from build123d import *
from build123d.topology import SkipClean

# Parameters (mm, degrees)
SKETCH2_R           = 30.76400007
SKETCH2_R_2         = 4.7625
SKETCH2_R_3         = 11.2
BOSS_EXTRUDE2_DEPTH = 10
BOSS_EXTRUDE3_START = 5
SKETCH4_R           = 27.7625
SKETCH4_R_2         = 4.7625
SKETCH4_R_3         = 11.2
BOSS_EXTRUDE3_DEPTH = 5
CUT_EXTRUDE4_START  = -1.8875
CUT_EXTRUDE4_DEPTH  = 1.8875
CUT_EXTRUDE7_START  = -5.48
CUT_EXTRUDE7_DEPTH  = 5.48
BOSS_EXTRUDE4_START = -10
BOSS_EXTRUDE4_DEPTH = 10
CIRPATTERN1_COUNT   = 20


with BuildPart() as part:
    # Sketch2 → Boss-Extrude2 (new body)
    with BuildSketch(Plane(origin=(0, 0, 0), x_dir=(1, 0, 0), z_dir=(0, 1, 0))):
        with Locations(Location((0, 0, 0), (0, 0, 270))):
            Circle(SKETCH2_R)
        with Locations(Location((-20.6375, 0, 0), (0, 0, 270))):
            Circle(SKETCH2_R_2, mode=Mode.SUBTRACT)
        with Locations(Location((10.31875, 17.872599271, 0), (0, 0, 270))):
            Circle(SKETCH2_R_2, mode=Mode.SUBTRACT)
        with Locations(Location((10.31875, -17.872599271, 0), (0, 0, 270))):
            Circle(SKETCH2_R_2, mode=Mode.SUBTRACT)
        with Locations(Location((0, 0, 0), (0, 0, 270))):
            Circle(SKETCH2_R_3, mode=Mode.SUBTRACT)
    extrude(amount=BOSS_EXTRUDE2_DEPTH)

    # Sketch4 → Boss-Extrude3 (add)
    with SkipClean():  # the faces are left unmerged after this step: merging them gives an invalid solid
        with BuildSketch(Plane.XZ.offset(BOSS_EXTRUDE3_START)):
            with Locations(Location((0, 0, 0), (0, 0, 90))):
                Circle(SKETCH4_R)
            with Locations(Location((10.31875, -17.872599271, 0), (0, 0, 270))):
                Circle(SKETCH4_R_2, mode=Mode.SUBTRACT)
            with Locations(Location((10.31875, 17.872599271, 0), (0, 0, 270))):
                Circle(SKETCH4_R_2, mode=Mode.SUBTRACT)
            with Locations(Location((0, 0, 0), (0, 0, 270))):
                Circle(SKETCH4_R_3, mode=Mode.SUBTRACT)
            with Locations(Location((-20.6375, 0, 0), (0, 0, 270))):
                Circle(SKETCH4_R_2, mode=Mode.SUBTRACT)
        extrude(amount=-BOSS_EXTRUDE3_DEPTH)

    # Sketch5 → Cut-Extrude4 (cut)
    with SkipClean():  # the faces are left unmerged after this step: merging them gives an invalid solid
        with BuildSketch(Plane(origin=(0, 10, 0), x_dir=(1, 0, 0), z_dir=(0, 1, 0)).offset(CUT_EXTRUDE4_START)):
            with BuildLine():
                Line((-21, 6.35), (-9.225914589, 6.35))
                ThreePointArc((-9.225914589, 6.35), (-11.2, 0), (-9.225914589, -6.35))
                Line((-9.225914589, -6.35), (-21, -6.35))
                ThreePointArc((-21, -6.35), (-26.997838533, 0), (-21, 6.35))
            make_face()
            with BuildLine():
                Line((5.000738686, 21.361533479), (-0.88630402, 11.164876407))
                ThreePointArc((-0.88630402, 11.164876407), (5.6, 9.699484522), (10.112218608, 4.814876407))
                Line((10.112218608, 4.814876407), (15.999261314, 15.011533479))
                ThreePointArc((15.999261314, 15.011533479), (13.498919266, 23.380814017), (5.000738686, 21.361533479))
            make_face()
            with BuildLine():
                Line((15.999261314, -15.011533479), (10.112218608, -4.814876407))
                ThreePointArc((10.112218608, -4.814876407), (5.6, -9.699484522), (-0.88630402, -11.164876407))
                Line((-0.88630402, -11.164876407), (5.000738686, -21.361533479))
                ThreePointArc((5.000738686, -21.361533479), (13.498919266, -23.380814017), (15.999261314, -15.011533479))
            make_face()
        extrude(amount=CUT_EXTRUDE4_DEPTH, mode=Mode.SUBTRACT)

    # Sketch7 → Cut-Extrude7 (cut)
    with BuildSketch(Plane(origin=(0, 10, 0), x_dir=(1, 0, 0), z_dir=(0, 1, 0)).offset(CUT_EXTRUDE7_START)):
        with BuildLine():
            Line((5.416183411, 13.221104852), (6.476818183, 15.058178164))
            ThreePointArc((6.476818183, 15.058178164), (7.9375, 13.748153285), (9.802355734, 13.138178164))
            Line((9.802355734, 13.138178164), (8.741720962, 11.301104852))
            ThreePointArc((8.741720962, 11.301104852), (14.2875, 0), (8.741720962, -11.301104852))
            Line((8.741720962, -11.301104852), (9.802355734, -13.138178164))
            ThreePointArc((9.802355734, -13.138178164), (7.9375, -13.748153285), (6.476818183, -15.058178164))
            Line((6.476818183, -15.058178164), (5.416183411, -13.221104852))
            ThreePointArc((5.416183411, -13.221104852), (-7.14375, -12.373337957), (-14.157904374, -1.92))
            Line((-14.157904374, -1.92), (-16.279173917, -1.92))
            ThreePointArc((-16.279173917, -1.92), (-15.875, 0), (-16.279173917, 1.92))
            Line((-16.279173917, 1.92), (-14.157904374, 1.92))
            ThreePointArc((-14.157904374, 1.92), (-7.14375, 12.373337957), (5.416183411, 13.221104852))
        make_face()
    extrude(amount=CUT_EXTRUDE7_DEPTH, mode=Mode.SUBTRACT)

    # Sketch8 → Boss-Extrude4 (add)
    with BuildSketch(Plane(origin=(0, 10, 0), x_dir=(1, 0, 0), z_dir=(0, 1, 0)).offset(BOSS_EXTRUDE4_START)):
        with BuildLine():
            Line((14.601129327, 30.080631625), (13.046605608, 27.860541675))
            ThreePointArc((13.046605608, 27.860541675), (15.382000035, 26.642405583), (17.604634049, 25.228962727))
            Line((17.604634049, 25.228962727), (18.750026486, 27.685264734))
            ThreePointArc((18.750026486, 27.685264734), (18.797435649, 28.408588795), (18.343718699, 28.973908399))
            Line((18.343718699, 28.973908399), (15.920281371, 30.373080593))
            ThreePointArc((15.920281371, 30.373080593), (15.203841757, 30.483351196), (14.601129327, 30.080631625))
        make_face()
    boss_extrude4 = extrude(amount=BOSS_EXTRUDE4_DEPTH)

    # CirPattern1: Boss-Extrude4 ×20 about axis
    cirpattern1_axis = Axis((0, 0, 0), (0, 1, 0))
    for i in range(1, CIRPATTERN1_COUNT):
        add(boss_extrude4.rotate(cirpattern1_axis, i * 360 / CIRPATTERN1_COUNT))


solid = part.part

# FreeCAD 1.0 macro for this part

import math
import FreeCAD as App
import Part
import Sketcher
from FreeCAD import Vector
Q = App.Units.Quantity

doc = App.newDocument("Part")
body = doc.addObject("PartDesign::Body", "Body")

# Sketch on XZ plane
sketch1 = body.newObject("Sketcher::SketchObject", "Sketch")
sketch1.AttachmentSupport = (doc.getObject("XZ_Plane"), [""])
sketch1.MapMode = "FlatFace"
sketch1.addGeometry([
    Part.Circle(Vector(0, 0, 0), Vector(0, 0, 1), 30.8),  # 0
    Part.Circle(Vector(-20.6, 0, 0), Vector(0, 0, 1), 4.8),  # 1
    Part.Circle(Vector(10.3, -17.9, 0), Vector(0, 0, 1), 4.8),  # 2
    Part.Circle(Vector(0, 0, 0), Vector(0, 0, 1), 11.2),  # 3
    Part.Circle(Vector(10.3, 17.9, 0), Vector(0, 0, 1), 4.8),  # 4
], False)
sketch1.addConstraint([
    Sketcher.Constraint("Coincident", 0, 3, -1, 1),
    Sketcher.Constraint("Coincident", 3, 3, -1, 1),
    Sketcher.Constraint("Equal", 1, 2),
    Sketcher.Constraint("Equal", 2, 4),
    Sketcher.Constraint("Symmetric", 2, 3, 4, 3, -1),
    Sketcher.Constraint("PointOnObject", 1, 3, -1),
    Sketcher.Constraint("Diameter", 3, 22.4),
    Sketcher.Constraint("Diameter", 0, 61.528),
    Sketcher.Constraint("Diameter", 1, 9.525),
    Sketcher.Constraint("DistanceX", 1, 3, -1, 1, 20.6375),
    Sketcher.Constraint("DistanceY", 2, 3, -1, 1, 17.872599),
    Sketcher.Constraint("DistanceX", -1, 1, 2, 3, 10.31875),
])
pad1 = body.newObject("PartDesign::Pad", "Pad")
pad1.Profile = sketch1
pad1.Length = 10
pad1.Reversed = True

# Sketch on XZ plane
sketch2 = body.newObject("Sketcher::SketchObject", "Sketch001")
sketch2.AttachmentSupport = (doc.getObject("XZ_Plane"), [""])
sketch2.MapMode = "FlatFace"
sketch2.AttachmentOffset = App.Placement(Vector(0, 0, 5), App.Rotation())
sketch2.addGeometry([
    Part.Circle(Vector(0, 0, 0), Vector(0, 0, 1), 27.8),  # 0
    Part.Circle(Vector(10.3, -17.9, 0), Vector(0, 0, 1), 4.8),  # 1
    Part.Circle(Vector(0, 0, 0), Vector(0, 0, 1), 11.2),  # 2
    Part.Circle(Vector(10.3, 17.9, 0), Vector(0, 0, 1), 4.8),  # 3
    Part.Circle(Vector(-20.6, 0, 0), Vector(0, 0, 1), 4.8),  # 4
], False)
sketch2.addConstraint([
    Sketcher.Constraint("Coincident", 0, 3, -1, 1),
    Sketcher.Constraint("Coincident", 2, 3, -1, 1),
    Sketcher.Constraint("Equal", 1, 3),
    Sketcher.Constraint("Equal", 3, 4),
    Sketcher.Constraint("Symmetric", 1, 3, 3, 3, -1),
    Sketcher.Constraint("PointOnObject", 4, 3, -1),
    Sketcher.Constraint("Diameter", 2, 22.4),
    Sketcher.Constraint("Diameter", 0, 55.525),
    Sketcher.Constraint("Diameter", 1, 9.525),
    Sketcher.Constraint("DistanceY", 1, 3, -1, 1, 17.872599),
    Sketcher.Constraint("DistanceX", 4, 3, -1, 1, 20.6375),
    Sketcher.Constraint("DistanceX", -1, 1, 1, 3, 10.31875),
])
pad2 = body.newObject("PartDesign::Pad", "Pad001")
pad2.Profile = sketch2
pad2.Length = 5
pad2.Reversed = True

# Sketch on XZ plane
sketch3 = body.newObject("Sketcher::SketchObject", "Sketch002")
sketch3.AttachmentSupport = (doc.getObject("XZ_Plane"), [""])
sketch3.MapMode = "FlatFace"
sketch3.AttachmentOffset = App.Placement(Vector(0, 0, -8.1125), App.Rotation())
sketch3.addGeometry([
    Part.LineSegment(Vector(-9, -6, 0), Vector(-21, -6, 0)),  # 0
    Part.ArcOfCircle(Part.Circle(Vector(-21, 0, 0), Vector(0, 0, 1), 6), math.radians(93), math.radians(267)),  # 1
    Part.LineSegment(Vector(-21, 6, 0), Vector(-9, 6, 0)),  # 2
    Part.ArcOfCircle(Part.Circle(Vector(0, 0, 0), Vector(0, 0, 1), 11), math.radians(145), math.radians(215)),  # 3
    Part.LineSegment(Vector(5, -21, 0), Vector(-1, -11, 0)),  # 4
    Part.ArcOfCircle(Part.Circle(Vector(0, 0, 0), Vector(0, 0, 1), 11), math.radians(-95), math.radians(-25)),  # 5
    Part.LineSegment(Vector(10, -5, 0), Vector(16, -15, 0)),  # 6
    Part.ArcOfCircle(Part.Circle(Vector(10, -18, 0), Vector(0, 0, 1), 6), math.radians(-147), math.radians(27)),  # 7
    Part.LineSegment(Vector(16, 15, 0), Vector(10, 5, 0)),  # 8
    Part.ArcOfCircle(Part.Circle(Vector(0, 0, 0), Vector(0, 0, 1), 11), math.radians(25), math.radians(95)),  # 9
    Part.LineSegment(Vector(-1, 11, 0), Vector(5, 21, 0)),  # 10
    Part.ArcOfCircle(Part.Circle(Vector(10, 18, 0), Vector(0, 0, 1), 6), math.radians(-27), math.radians(147)),  # 11
], False)
sketch3.addConstraint([
    Sketcher.Constraint("Coincident", 0, 2, 1, 2),
    Sketcher.Constraint("Coincident", 1, 1, 2, 1),
    Sketcher.Constraint("Coincident", 2, 2, 3, 1),
    Sketcher.Constraint("Coincident", 3, 2, 0, 1),
    Sketcher.Constraint("Coincident", 4, 2, 5, 1),
    Sketcher.Constraint("Coincident", 5, 2, 6, 1),
    Sketcher.Constraint("Coincident", 6, 2, 7, 2),
    Sketcher.Constraint("Coincident", 7, 1, 4, 1),
    Sketcher.Constraint("Coincident", 8, 2, 9, 1),
    Sketcher.Constraint("Coincident", 9, 2, 10, 1),
    Sketcher.Constraint("Coincident", 10, 2, 11, 2),
    Sketcher.Constraint("Coincident", 11, 1, 8, 1),
    Sketcher.Constraint("Horizontal", 0),
    Sketcher.Constraint("Horizontal", 2),
    Sketcher.Constraint("Coincident", 3, 3, -1, 1),
    Sketcher.Constraint("Coincident", 5, 3, -1, 1),
    Sketcher.Constraint("Coincident", 9, 3, -1, 1),
    Sketcher.Constraint("Equal", 3, 5),
    Sketcher.Constraint("Equal", 1, 7),
    Sketcher.Constraint("Equal", 5, 9),
    Sketcher.Constraint("Equal", 7, 11),
    Sketcher.Constraint("Symmetric", 7, 3, 11, 3, -1),
    Sketcher.Constraint("Symmetric", 0, 2, 1, 1, -1),
    Sketcher.Constraint("Parallel", 4, 6),
    Sketcher.Constraint("Parallel", 8, 10),
    Sketcher.Constraint("Vertical", 5, 2, 8, 2),
    Sketcher.Constraint("Vertical", 4, 2, 9, 2),
    Sketcher.Constraint("Vertical", 7, 1, 10, 2),
    Sketcher.Constraint("Equal", 4, 6),
    Sketcher.Constraint("Radius", 3, 11.2),
    Sketcher.Constraint("Angle", 4, Q("120 deg")),
    Sketcher.Constraint("DistanceX", 0, 2, -1, 1, 21.0),
    Sketcher.Constraint("DistanceY", 0, 2, 1, 1, 12.7),
    Sketcher.Constraint("Radius", 1, 6.360339),
    Sketcher.Constraint("DistanceY", 4, 2, 5, 2, 6.35),
    Sketcher.Constraint("DistanceY", 7, 3, -1, 1, 17.872599),
    Sketcher.Constraint("DistanceX", -1, 1, 7, 3, 10.31875),
])
pocket1 = body.newObject("PartDesign::Pocket", "Pocket")
pocket1.Profile = sketch3
pocket1.Length = 1.8875

# Sketch on XZ plane
sketch4 = body.newObject("Sketcher::SketchObject", "Sketch003")
sketch4.AttachmentSupport = (doc.getObject("XZ_Plane"), [""])
sketch4.MapMode = "FlatFace"
sketch4.AttachmentOffset = App.Placement(Vector(0, 0, -4.52), App.Rotation())
sketch4.addGeometry([
    Part.LineSegment(Vector(6.5, -15.1, 0), Vector(5.4, -13.2, 0)),  # 0
    Part.ArcOfCircle(Part.Circle(Vector(0, 0, 0), Vector(0, 0, 1), 14.3), math.radians(-172), math.radians(-68)),  # 1
    Part.LineSegment(Vector(-14.2, -1.9, 0), Vector(-16.3, -1.9, 0)),  # 2
    Part.ArcOfCircle(Part.Circle(Vector(-20.6, 0, 0), Vector(0, 0, 1), 4.8), math.radians(-24), math.radians(24)),  # 3
    Part.LineSegment(Vector(-16.3, 1.9, 0), Vector(-14.2, 1.9, 0)),  # 4
    Part.ArcOfCircle(Part.Circle(Vector(0, 0, 0), Vector(0, 0, 1), 14.3), math.radians(68), math.radians(172)),  # 5
    Part.LineSegment(Vector(5.4, 13.2, 0), Vector(6.5, 15.1, 0)),  # 6
    Part.ArcOfCircle(Part.Circle(Vector(10.3, 17.9, 0), Vector(0, 0, 1), 4.8), math.radians(-144), math.radians(-96)),  # 7
    Part.LineSegment(Vector(9.8, 13.1, 0), Vector(8.7, 11.3, 0)),  # 8
    Part.ArcOfCircle(Part.Circle(Vector(0, 0, 0), Vector(0, 0, 1), 14.3), math.radians(-52), math.radians(52)),  # 9
    Part.LineSegment(Vector(8.7, -11.3, 0), Vector(9.8, -13.1, 0)),  # 10
    Part.ArcOfCircle(Part.Circle(Vector(10.3, -17.9, 0), Vector(0, 0, 1), 4.8), math.radians(96), math.radians(144)),  # 11
], False)
sketch4.addConstraint([
    Sketcher.Constraint("Coincident", 0, 2, 1, 2),
    Sketcher.Constraint("Coincident", 1, 1, 2, 1),
    Sketcher.Constraint("Coincident", 2, 2, 3, 1),
    Sketcher.Constraint("Coincident", 3, 2, 4, 1),
    Sketcher.Constraint("Coincident", 4, 2, 5, 2),
    Sketcher.Constraint("Coincident", 5, 1, 6, 1),
    Sketcher.Constraint("Coincident", 6, 2, 7, 1),
    Sketcher.Constraint("Coincident", 7, 2, 8, 1),
    Sketcher.Constraint("Coincident", 8, 2, 9, 2),
    Sketcher.Constraint("Coincident", 9, 1, 10, 1),
    Sketcher.Constraint("Coincident", 10, 2, 11, 1),
    Sketcher.Constraint("Coincident", 11, 2, 0, 1),
    Sketcher.Constraint("Horizontal", 2),
    Sketcher.Constraint("Horizontal", 4),
    Sketcher.Constraint("Coincident", 1, 3, -1, 1),
    Sketcher.Constraint("Coincident", 5, 3, -1, 1),
    Sketcher.Constraint("Coincident", 9, 3, -1, 1),
    Sketcher.Constraint("Equal", 1, 5),
    Sketcher.Constraint("Equal", 3, 7),
    Sketcher.Constraint("Equal", 5, 9),
    Sketcher.Constraint("Equal", 7, 11),
    Sketcher.Constraint("Symmetric", 7, 3, 11, 3, -1),
    Sketcher.Constraint("Symmetric", 2, 2, 3, 2, -1),
    Sketcher.Constraint("Parallel", 6, 8),
    Sketcher.Constraint("Parallel", 0, 10),
    Sketcher.Constraint("Vertical", 0, 2, 5, 1),
    Sketcher.Constraint("Vertical", 8, 2, 9, 1),
    Sketcher.Constraint("Vertical", 7, 2, 10, 2),
    Sketcher.Constraint("Equal", 6, 8),
    Sketcher.Constraint("Angle", 0, Q("120 deg")),
    Sketcher.Constraint("Radius", 1, 14.2875),
    Sketcher.Constraint("Radius", 3, 4.7625),
    Sketcher.Constraint("DistanceY", 1, 1, -1, 1, 1.92),
    Sketcher.Constraint("DistanceY", 7, 2, 6, 2, 1.92),
    Sketcher.Constraint("DistanceX", 2, 2, 2, 1, 2.12127),
    Sketcher.Constraint("DistanceY", -1, 1, 7, 3, 17.872599),
    Sketcher.Constraint("Distance", 0, 2.12127),
])
pocket2 = body.newObject("PartDesign::Pocket", "Pocket001")
pocket2.Profile = sketch4
pocket2.Length = 5.48

# Sketch on XZ plane
sketch5 = body.newObject("Sketcher::SketchObject", "Sketch004")
sketch5.AttachmentSupport = (doc.getObject("XZ_Plane"), [""])
sketch5.MapMode = "FlatFace"
sketch5.addGeometry([
    Part.LineSegment(Vector(14.6, -30.1, 0), Vector(13, -27.9, 0)),  # 0
    Part.ArcOfCircle(Part.Circle(Vector(0, 0, 0), Vector(0, 0, 1), 30.8), math.radians(-64.91), math.radians(-55.09)),  # 1
    Part.LineSegment(Vector(17.6, -25.2, 0), Vector(18.8, -27.7, 0)),  # 2
    Part.ArcOfCircle(Part.Circle(Vector(17.8, -28.1, 0), Vector(0, 0, 1), 1), math.radians(-60), math.radians(25)),  # 3
    Part.LineSegment(Vector(18.3, -29, 0), Vector(15.9, -30.4, 0)),  # 4
    Part.ArcOfCircle(Part.Circle(Vector(15.4, -29.5, 0), Vector(0, 0, 1), 1), math.radians(-145), math.radians(-60)),  # 5
], False)
sketch5.addConstraint([
    Sketcher.Constraint("Coincident", 0, 2, 1, 1),
    Sketcher.Constraint("Coincident", 1, 2, 2, 1),
    Sketcher.Constraint("Tangent", 2, 2, 3, 2),
    Sketcher.Constraint("Tangent", 3, 1, 4, 1),
    Sketcher.Constraint("Tangent", 4, 2, 5, 2),
    Sketcher.Constraint("Tangent", 5, 1, 0, 1),
    Sketcher.Constraint("Coincident", 1, 3, -1, 1),
    Sketcher.Constraint("Equal", 3, 5),
    Sketcher.Constraint("Equal", 0, 2),
    Sketcher.Constraint("Radius", 3, 1.0),
    Sketcher.Constraint("Angle", 0, Q("125 deg")),
    Sketcher.Constraint("Angle", 2, Q("-65 deg")),
    Sketcher.Constraint("Angle", 4, Q("-150 deg")),
    Sketcher.Constraint("Radius", 1, 30.764),
    Sketcher.Constraint("Distance", 0, 2.710229),
    Sketcher.Constraint("DistanceX", -1, 1, 3, 3, 17.843719),
])
pad3 = body.newObject("PartDesign::Pad", "Pad002")
pad3.Profile = sketch5
pad3.Length = 10
pad3.Reversed = True
doc.recompute()

polarpattern = body.newObject("PartDesign::PolarPattern", "PolarPattern")
polarpattern.Originals = [pad3]
polarpattern.Axis = (doc.getObject("Y_Axis"), [""])
polarpattern.Angle = 360
polarpattern.Occurrences = 20
body.Tip = polarpattern

doc.recompute()
